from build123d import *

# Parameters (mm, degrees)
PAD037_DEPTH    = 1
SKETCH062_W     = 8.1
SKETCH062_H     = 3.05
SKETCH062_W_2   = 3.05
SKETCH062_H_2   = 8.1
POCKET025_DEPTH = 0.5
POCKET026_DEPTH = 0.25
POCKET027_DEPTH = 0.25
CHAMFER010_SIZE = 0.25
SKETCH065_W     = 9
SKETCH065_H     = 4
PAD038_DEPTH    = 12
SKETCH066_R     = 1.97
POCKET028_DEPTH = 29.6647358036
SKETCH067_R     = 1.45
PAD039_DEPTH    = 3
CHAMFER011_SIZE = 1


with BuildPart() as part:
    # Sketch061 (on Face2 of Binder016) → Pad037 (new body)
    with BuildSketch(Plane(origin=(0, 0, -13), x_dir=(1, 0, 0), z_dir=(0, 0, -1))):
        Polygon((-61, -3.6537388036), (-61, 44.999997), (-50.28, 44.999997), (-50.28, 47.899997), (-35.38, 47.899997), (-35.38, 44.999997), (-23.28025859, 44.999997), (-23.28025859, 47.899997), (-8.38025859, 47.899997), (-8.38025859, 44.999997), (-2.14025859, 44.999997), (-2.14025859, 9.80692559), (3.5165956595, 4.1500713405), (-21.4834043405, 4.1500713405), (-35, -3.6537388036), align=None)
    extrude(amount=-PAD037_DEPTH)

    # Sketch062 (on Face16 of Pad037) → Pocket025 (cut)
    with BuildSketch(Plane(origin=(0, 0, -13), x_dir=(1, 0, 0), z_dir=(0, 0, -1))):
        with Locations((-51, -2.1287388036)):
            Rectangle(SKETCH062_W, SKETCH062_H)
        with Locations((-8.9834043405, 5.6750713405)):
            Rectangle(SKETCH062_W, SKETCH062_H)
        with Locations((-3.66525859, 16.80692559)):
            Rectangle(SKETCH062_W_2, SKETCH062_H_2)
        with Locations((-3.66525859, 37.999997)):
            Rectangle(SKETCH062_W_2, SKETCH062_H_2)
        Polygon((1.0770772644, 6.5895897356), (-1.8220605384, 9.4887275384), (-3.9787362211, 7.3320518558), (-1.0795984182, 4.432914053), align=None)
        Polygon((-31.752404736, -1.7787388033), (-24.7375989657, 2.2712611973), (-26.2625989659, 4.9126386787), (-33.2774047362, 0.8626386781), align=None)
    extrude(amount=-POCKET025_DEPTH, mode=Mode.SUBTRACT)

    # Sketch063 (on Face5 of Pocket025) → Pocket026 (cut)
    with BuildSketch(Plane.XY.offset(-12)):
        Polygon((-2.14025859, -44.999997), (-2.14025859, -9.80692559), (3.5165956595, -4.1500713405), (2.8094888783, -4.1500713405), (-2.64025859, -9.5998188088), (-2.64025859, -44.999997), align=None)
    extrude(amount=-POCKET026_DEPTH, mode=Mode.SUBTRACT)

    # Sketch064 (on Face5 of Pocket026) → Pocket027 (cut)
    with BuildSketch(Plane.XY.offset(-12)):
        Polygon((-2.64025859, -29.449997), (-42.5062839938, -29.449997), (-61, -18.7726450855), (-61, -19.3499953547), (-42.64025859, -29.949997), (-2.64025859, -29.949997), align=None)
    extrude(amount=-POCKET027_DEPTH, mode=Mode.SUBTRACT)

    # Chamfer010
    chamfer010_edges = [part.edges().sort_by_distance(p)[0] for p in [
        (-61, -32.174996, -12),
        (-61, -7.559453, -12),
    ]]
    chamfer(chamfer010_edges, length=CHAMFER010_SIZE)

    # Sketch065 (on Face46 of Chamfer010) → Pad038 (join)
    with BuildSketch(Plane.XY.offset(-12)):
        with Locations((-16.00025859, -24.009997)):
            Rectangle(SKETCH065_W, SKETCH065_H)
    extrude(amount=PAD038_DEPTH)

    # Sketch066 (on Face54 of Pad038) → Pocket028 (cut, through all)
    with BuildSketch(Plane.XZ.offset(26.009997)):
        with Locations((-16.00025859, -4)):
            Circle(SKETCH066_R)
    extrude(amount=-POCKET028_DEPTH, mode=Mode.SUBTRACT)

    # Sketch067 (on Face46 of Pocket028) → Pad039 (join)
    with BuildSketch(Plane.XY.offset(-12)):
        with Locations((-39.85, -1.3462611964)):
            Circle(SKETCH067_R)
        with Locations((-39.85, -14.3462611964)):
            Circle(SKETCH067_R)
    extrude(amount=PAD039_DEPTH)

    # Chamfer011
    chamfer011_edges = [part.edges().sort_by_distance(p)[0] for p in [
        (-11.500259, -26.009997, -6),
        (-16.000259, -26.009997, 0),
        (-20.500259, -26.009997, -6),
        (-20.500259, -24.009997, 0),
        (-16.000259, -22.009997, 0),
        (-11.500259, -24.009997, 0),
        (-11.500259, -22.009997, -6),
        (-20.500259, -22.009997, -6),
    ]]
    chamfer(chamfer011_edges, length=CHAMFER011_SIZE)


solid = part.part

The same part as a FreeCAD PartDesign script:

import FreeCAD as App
import Part
import Sketcher

V = App.Vector
Q = App.Units.Quantity


def edges_at(feature, points):
    """Names of the edges that pass closest to the given points."""
    edges = feature.Shape.Edges
    near = lambda p: min(range(len(edges)), key=lambda i: edges[i].distToShape(Part.Vertex(*p))[0])
    return sorted({f"Edge{near(p) + 1}" for p in points})

doc = App.newDocument("Part")
body = doc.addObject("PartDesign::Body", "Body")

# Sketch on XY plane
sketch1 = doc.addObject("Sketcher::SketchObject", "Sketch")
body.addObject(sketch1)
sketch1.AttachmentSupport = (doc.XY_Plane, [""])
sketch1.MapMode = "FlatFace"
sketch1.AttachmentOffset = App.Placement(V(0, 0, -13), App.Rotation())
sketch1.addGeometry(Part.LineSegment(V(-61, -45, 0), V(-61, 3.7, 0)), False)
sketch1.addGeometry(Part.LineSegment(V(-61, 3.7, 0), V(-35, 3.7, 0)), False)
sketch1.addGeometry(Part.LineSegment(V(-35, 3.7, 0), V(-21.5, -4.2, 0)), False)
sketch1.addGeometry(Part.LineSegment(V(-21.5, -4.2, 0), V(3.5, -4.2, 0)), False)
sketch1.addGeometry(Part.LineSegment(V(3.5, -4.2, 0), V(-2.1, -9.8, 0)), False)
sketch1.addGeometry(Part.LineSegment(V(-2.1, -9.8, 0), V(-2.1, -45, 0)), False)
sketch1.addGeometry(Part.LineSegment(V(-2.1, -45, 0), V(-8.4, -45, 0)), False)
sketch1.addGeometry(Part.LineSegment(V(-8.4, -45, 0), V(-8.4, -47.9, 0)), False)
sketch1.addGeometry(Part.LineSegment(V(-8.4, -47.9, 0), V(-23.3, -47.9, 0)), False)
sketch1.addGeometry(Part.LineSegment(V(-23.3, -47.9, 0), V(-23.3, -45, 0)), False)
sketch1.addGeometry(Part.LineSegment(V(-23.3, -45, 0), V(-35.4, -45, 0)), False)
sketch1.addGeometry(Part.LineSegment(V(-35.4, -45, 0), V(-35.4, -47.9, 0)), False)
sketch1.addGeometry(Part.LineSegment(V(-35.4, -47.9, 0), V(-50.3, -47.9, 0)), False)
sketch1.addGeometry(Part.LineSegment(V(-50.3, -47.9, 0), V(-50.3, -45, 0)), False)
sketch1.addGeometry(Part.LineSegment(V(-50.3, -45, 0), V(-61, -45, 0)), False)
sketch1.addConstraint(Sketcher.Constraint("Coincident", 0, 2, 1, 1))
sketch1.addConstraint(Sketcher.Constraint("Coincident", 1, 2, 2, 1))
sketch1.addConstraint(Sketcher.Constraint("Coincident", 2, 2, 3, 1))
sketch1.addConstraint(Sketcher.Constraint("Coincident", 3, 2, 4, 1))
sketch1.addConstraint(Sketcher.Constraint("Coincident", 4, 2, 5, 1))
sketch1.addConstraint(Sketcher.Constraint("Coincident", 5, 2, 6, 1))
sketch1.addConstraint(Sketcher.Constraint("Coincident", 6, 2, 7, 1))
sketch1.addConstraint(Sketcher.Constraint("Coincident", 7, 2, 8, 1))
sketch1.addConstraint(Sketcher.Constraint("Coincident", 8, 2, 9, 1))
sketch1.addConstraint(Sketcher.Constraint("Coincident", 9, 2, 10, 1))
sketch1.addConstraint(Sketcher.Constraint("Coincident", 10, 2, 11, 1))
sketch1.addConstraint(Sketcher.Constraint("Coincident", 11, 2, 12, 1))
sketch1.addConstraint(Sketcher.Constraint("Coincident", 12, 2, 13, 1))
sketch1.addConstraint(Sketcher.Constraint("Coincident", 13, 2, 14, 1))
sketch1.addConstraint(Sketcher.Constraint("Coincident", 14, 2, 0, 1))
sketch1.addConstraint(Sketcher.Constraint("Vertical", 0))
sketch1.addConstraint(Sketcher.Constraint("Horizontal", 1))
sketch1.addConstraint(Sketcher.Constraint("Horizontal", 3))
sketch1.addConstraint(Sketcher.Constraint("Vertical", 5))
sketch1.addConstraint(Sketcher.Constraint("Horizontal", 6))
sketch1.addConstraint(Sketcher.Constraint("Vertical", 7))
sketch1.addConstraint(Sketcher.Constraint("Horizontal", 8))
sketch1.addConstraint(Sketcher.Constraint("Vertical", 9))
sketch1.addConstraint(Sketcher.Constraint("Horizontal", 10))
sketch1.addConstraint(Sketcher.Constraint("Vertical", 11))
sketch1.addConstraint(Sketcher.Constraint("Horizontal", 12))
sketch1.addConstraint(Sketcher.Constraint("Vertical", 13))
sketch1.addConstraint(Sketcher.Constraint("Horizontal", 14))
sketch1.addConstraint(Sketcher.Constraint("Horizontal", 6, 2, 9, 2))
sketch1.addConstraint(Sketcher.Constraint("Horizontal", 8, 2, 11, 2))
sketch1.addConstraint(Sketcher.Constraint("Horizontal", 10, 2, 13, 2))
sketch1.addConstraint(Sketcher.Constraint("Equal", 8, 12))
sketch1.addConstraint(Sketcher.Constraint("DistanceX", 1, 1, 1, 2, Q("26 mm")))
sketch1.addConstraint(Sketcher.Constraint("DistanceX", 3, 1, 3, 2, Q("25 mm")))
sketch1.addConstraint(Sketcher.Constraint("Angle", 2, Q("-30 deg")))
sketch1.addConstraint(Sketcher.Constraint("Angle", 4, Q("-135 deg")))
sketch1.addConstraint(Sketcher.Constraint("Distance", 4, Q("8 mm")))
sketch1.addConstraint(Sketcher.Constraint("DistanceX", 8, 2, 8, 1, Q("14.9 mm")))
sketch1.addConstraint(Sketcher.Constraint("DistanceY", 7, 2, 7, 1, Q("2.9 mm")))
sketch1.addConstraint(Sketcher.Constraint("DistanceX", 0, 2, -1, 1, Q("61 mm")))
sketch1.addConstraint(Sketcher.Constraint("DistanceX", 6, 2, 6, 1, Q("6.24 mm")))
sketch1.addConstraint(Sketcher.Constraint("DistanceX", 14, 2, 14, 1, Q("10.72 mm")))
sketch1.addConstraint(Sketcher.Constraint("DistanceX", 10, 2, 10, 1, Q("12.099741 mm")))
sketch1.addConstraint(Sketcher.Constraint("DistanceY", 5, 2, 5, 1, Q("35.193071 mm")))
sketch1.addConstraint(Sketcher.Constraint("DistanceY", -1, 1, 0, 2, Q("3.653739 mm")))
pad1 = doc.addObject("PartDesign::Pad", "Pad")
body.addObject(pad1)
pad1.Profile = sketch1
pad1.Length = 1

# Sketch on XY plane
sketch2 = doc.addObject("Sketcher::SketchObject", "Sketch001")
body.addObject(sketch2)
sketch2.AttachmentSupport = (doc.XY_Plane, [""])
sketch2.MapMode = "FlatFace"
sketch2.AttachmentOffset = App.Placement(V(0, 0, -13), App.Rotation())
sketch2.addGeometry(Part.LineSegment(V(-55, 0.6, 0), V(-55, 3.7, 0)), False)
sketch2.addGeometry(Part.LineSegment(V(-55, 3.7, 0), V(-47, 3.7, 0)), False)
sketch2.addGeometry(Part.LineSegment(V(-47, 3.7, 0), V(-47, 0.6, 0)), False)
sketch2.addGeometry(Part.LineSegment(V(-47, 0.6, 0), V(-55, 0.6, 0)), False)
sketch2.addGeometry(Part.LineSegment(V(-13, -7.2, 0), V(-13, -4.2, 0)), False)
sketch2.addGeometry(Part.LineSegment(V(-13, -4.2, 0), V(-4.9, -4.2, 0)), False)
sketch2.addGeometry(Part.LineSegment(V(-4.9, -4.2, 0), V(-4.9, -7.2, 0)), False)
sketch2.addGeometry(Part.LineSegment(V(-4.9, -7.2, 0), V(-13, -7.2, 0)), False)
sketch2.addGeometry(Part.LineSegment(V(-5.2, -20.9, 0), V(-5.2, -12.8, 0)), False)
sketch2.addGeometry(Part.LineSegment(V(-5.2, -12.8, 0), V(-2.1, -12.8, 0)), False)
sketch2.addGeometry(Part.LineSegment(V(-2.1, -12.8, 0), V(-2.1, -20.9, 0)), False)
sketch2.addGeometry(Part.LineSegment(V(-2.1, -20.9, 0), V(-5.2, -20.9, 0)), False)
sketch2.addGeometry(Part.LineSegment(V(-5.2, -42, 0), V(-5.2, -33.9, 0)), False)
sketch2.addGeometry(Part.LineSegment(V(-5.2, -33.9, 0), V(-2.1, -33.9, 0)), False)
sketch2.addGeometry(Part.LineSegment(V(-2.1, -33.9, 0), V(-2.1, -42, 0)), False)
sketch2.addGeometry(Part.LineSegment(V(-2.1, -42, 0), V(-5.2, -42, 0)), False)
sketch2.addGeometry(Part.LineSegment(V(1.1, -6.6, 0), V(-1.8, -9.5, 0)), False)
sketch2.addGeometry(Part.LineSegment(V(-1.8, -9.5, 0), V(-4, -7.3, 0)), False)
sketch2.addGeometry(Part.LineSegment(V(-4, -7.3, 0), V(-1.1, -4.4, 0)), False)
sketch2.addGeometry(Part.LineSegment(V(-1.1, -4.4, 0), V(1.1, -6.6, 0)), False)
sketch2.addGeometry(Part.LineSegment(V(-31.8, 1.8, 0), V(-24.7, -2.3, 0)), False)
sketch2.addGeometry(Part.LineSegment(V(-24.7, -2.3, 0), V(-26.3, -4.9, 0)), False)
sketch2.addGeometry(Part.LineSegment(V(-26.3, -4.9, 0), V(-33.3, -0.9, 0)), False)
sketch2.addGeometry(Part.LineSegment(V(-33.3, -0.9, 0), V(-31.8, 1.8, 0)), False)
sketch2.addConstraint(Sketcher.Constraint("Coincident", 0, 2, 1, 1))
sketch2.addConstraint(Sketcher.Constraint("Coincident", 1, 2, 2, 1))
sketch2.addConstraint(Sketcher.Constraint("Coincident", 2, 2, 3, 1))
sketch2.addConstraint(Sketcher.Constraint("Coincident", 3, 2, 0, 1))
sketch2.addConstraint(Sketcher.Constraint("Coincident", 4, 2, 5, 1))
sketch2.addConstraint(Sketcher.Constraint("Coincident", 5, 2, 6, 1))
sketch2.addConstraint(Sketcher.Constraint("Coincident", 6, 2, 7, 1))
sketch2.addConstraint(Sketcher.Constraint("Coincident", 7, 2, 4, 1))
sketch2.addConstraint(Sketcher.Constraint("Coincident", 8, 2, 9, 1))
sketch2.addConstraint(Sketcher.Constraint("Coincident", 9, 2, 10, 1))
sketch2.addConstraint(Sketcher.Constraint("Coincident", 10, 2, 11, 1))
sketch2.addConstraint(Sketcher.Constraint("Coincident", 11, 2, 8, 1))
sketch2.addConstraint(Sketcher.Constraint("Coincident", 12, 2, 13, 1))
sketch2.addConstraint(Sketcher.Constraint("Coincident", 13, 2, 14, 1))
sketch2.addConstraint(Sketcher.Constraint("Coincident", 14, 2, 15, 1))
sketch2.addConstraint(Sketcher.Constraint("Coincident", 15, 2, 12, 1))
sketch2.addConstraint(Sketcher.Constraint("Coincident", 16, 2, 17, 1))
sketch2.addConstraint(Sketcher.Constraint("Coincident", 17, 2, 18, 1))
sketch2.addConstraint(Sketcher.Constraint("Coincident", 18, 2, 19, 1))
sketch2.addConstraint(Sketcher.Constraint("Coincident", 19, 2, 16, 1))
sketch2.addConstraint(Sketcher.Constraint("Coincident", 20, 2, 21, 1))
sketch2.addConstraint(Sketcher.Constraint("Coincident", 21, 2, 22, 1))
sketch2.addConstraint(Sketcher.Constraint("Coincident", 22, 2, 23, 1))
sketch2.addConstraint(Sketcher.Constraint("Coincident", 23, 2, 20, 1))
sketch2.addConstraint(Sketcher.Constraint("Vertical", 0))
sketch2.addConstraint(Sketcher.Constraint("Horizontal", 1))
sketch2.addConstraint(Sketcher.Constraint("Vertical", 2))
sketch2.addConstraint(Sketcher.Constraint("Horizontal", 3))
sketch2.addConstraint(Sketcher.Constraint("Vertical", 4))
sketch2.addConstraint(Sketcher.Constraint("Horizontal", 5))
sketch2.addConstraint(Sketcher.Constraint("Vertical", 6))
sketch2.addConstraint(Sketcher.Constraint("Horizontal", 7))
sketch2.addConstraint(Sketcher.Constraint("Vertical", 8))
sketch2.addConstraint(Sketcher.Constraint("Horizontal", 9))
sketch2.addConstraint(Sketcher.Constraint("Vertical", 10))
sketch2.addConstraint(Sketcher.Constraint("Horizontal", 11))
sketch2.addConstraint(Sketcher.Constraint("Vertical", 12))
sketch2.addConstraint(Sketcher.Constraint("Horizontal", 13))
sketch2.addConstraint(Sketcher.Constraint("Vertical", 14))
sketch2.addConstraint(Sketcher.Constraint("Horizontal", 15))
sketch2.addConstraint(Sketcher.Constraint("Perpendicular", 16, 17))
sketch2.addConstraint(Sketcher.Constraint("Perpendicular", 17, 18))
sketch2.addConstraint(Sketcher.Constraint("Perpendicular", 18, 19))
sketch2.addConstraint(Sketcher.Constraint("Perpendicular", 20, 21))
sketch2.addConstraint(Sketcher.Constraint("Perpendicular", 21, 22))
sketch2.addConstraint(Sketcher.Constraint("Perpendicular", 22, 23))
sketch2.addConstraint(Sketcher.Constraint("Vertical", 11, 2, 12, 2))
sketch2.addConstraint(Sketcher.Constraint("Vertical", 10, 2, 13, 2))
sketch2.addConstraint(Sketcher.Constraint("Equal", 3, 5))
sketch2.addConstraint(Sketcher.Constraint("Equal", 15, 0))
sketch2.addConstraint(Sketcher.Constraint("Equal", 2, 4))
sketch2.addConstraint(Sketcher.Constraint("Equal", 7, 8))
sketch2.addConstraint(Sketcher.Constraint("Equal", 10, 12))
sketch2.addConstraint(Sketcher.Constraint("Equal", 19, 21))
sketch2.addConstraint(Sketcher.Constraint("Angle", 16, Q("-135 deg")))
sketch2.addConstraint(Sketcher.Constraint("Angle", 20, Q("-30 deg")))
sketch2.addConstraint(Sketcher.Constraint("DistanceX", 1, 1, 1, 2, Q("8.1 mm")))
sketch2.addConstraint(Sketcher.Constraint("Distance", 16, Q("4.1 mm")))
sketch2.addConstraint(Sketcher.Constraint("Distance", 20, Q("8.1 mm")))
sketch2.addConstraint(Sketcher.Constraint("DistanceX", 9, 1, 9, 2, Q("3.05 mm")))
sketch2.addConstraint(Sketcher.Constraint("Distance", 17, Q("3.05 mm")))
sketch2.addConstraint(Sketcher.Constraint("DistanceX", 0, 2, -1, 1, Q("55.05 mm")))
sketch2.addConstraint(Sketcher.Constraint("DistanceX", 22, 2, 4, 2, Q("20.244 mm")))
sketch2.addConstraint(Sketcher.Constraint("DistanceY", 2, 2, 23, 2, Q("1.175 mm")))
sketch2.addConstraint(Sketcher.Constraint("DistanceX", 18, 2, -1, 1, Q("1.079598 mm")))
sketch2.addConstraint(Sketcher.Constraint("DistanceX", 20, 2, -1, 1, Q("24.737599 mm")))
sketch2.addConstraint(Sketcher.Constraint("DistanceX", 9, 2, 16, 2, Q("0.318198 mm")))
sketch2.addConstraint(Sketcher.Constraint("DistanceY", 9, 2, 16, 2, Q("3.268198 mm")))
sketch2.addConstraint(Sketcher.Constraint("DistanceY", -1, 1, 0, 2, Q("3.653739 mm")))
sketch2.addConstraint(Sketcher.Constraint("DistanceY", 4, 2, -1, 1, Q("4.150071 mm")))
sketch2.addConstraint(Sketcher.Constraint("DistanceY", 17, 2, -1, 1, Q("7.332052 mm")))
sketch2.addConstraint(Sketcher.Constraint("DistanceY", 12, 2, 11, 2, Q("13.093071 mm")))
pocket1 = doc.addObject("PartDesign::Pocket", "Pocket")
body.addObject(pocket1)
pocket1.Profile = sketch2
pocket1.Length = 0.5
pocket1.Reversed = True

# Sketch on XY plane
sketch3 = doc.addObject("Sketcher::SketchObject", "Sketch002")
body.addObject(sketch3)
sketch3.AttachmentSupport = (doc.XY_Plane, [""])
sketch3.MapMode = "FlatFace"
sketch3.AttachmentOffset = App.Placement(V(0, 0, -12), App.Rotation())
sketch3.addGeometry(Part.LineSegment(V(-2.1, -45, 0), V(-2.1, -9.8, 0)), False)
sketch3.addGeometry(Part.LineSegment(V(-2.1, -9.8, 0), V(3.5, -4.2, 0)), False)
sketch3.addGeometry(Part.LineSegment(V(3.5, -4.2, 0), V(2.8, -4.2, 0)), False)
sketch3.addGeometry(Part.LineSegment(V(2.8, -4.2, 0), V(-2.6, -9.6, 0)), False)
sketch3.addGeometry(Part.LineSegment(V(-2.6, -9.6, 0), V(-2.6, -45, 0)), False)
sketch3.addGeometry(Part.LineSegment(V(-2.6, -45, 0), V(-2.1, -45, 0)), False)
sketch3.addConstraint(Sketcher.Constraint("Coincident", 0, 2, 1, 1))
sketch3.addConstraint(Sketcher.Constraint("Coincident", 1, 2, 2, 1))
sketch3.addConstraint(Sketcher.Constraint("Coincident", 2, 2, 3, 1))
sketch3.addConstraint(Sketcher.Constraint("Coincident", 3, 2, 4, 1))
sketch3.addConstraint(Sketcher.Constraint("Coincident", 4, 2, 5, 1))
sketch3.addConstraint(Sketcher.Constraint("Coincident", 5, 2, 0, 1))
sketch3.addConstraint(Sketcher.Constraint("Vertical", 0))
sketch3.addConstraint(Sketcher.Constraint("Horizontal", 2))
sketch3.addConstraint(Sketcher.Constraint("Vertical", 4))
sketch3.addConstraint(Sketcher.Constraint("Horizontal", 5))
sketch3.addConstraint(Sketcher.Constraint("Parallel", 1, 3))
sketch3.addConstraint(Sketcher.Constraint("Angle", 1, Q("45 deg")))
sketch3.addConstraint(Sketcher.Constraint("Distance", 1, Q("8 mm")))
sketch3.addConstraint(Sketcher.Constraint("DistanceX", 5, 1, 5, 2, Q("0.5 mm")))
sketch3.addConstraint(Sketcher.Constraint("DistanceY", 0, 1, 0, 2, Q("35.193071 mm")))
sketch3.addConstraint(Sketcher.Constraint("DistanceY", 4, 2, 4, 1, Q("35.400178 mm")))
sketch3.addConstraint(Sketcher.Constraint("DistanceX", 0, 2, -1, 1, Q("2.140259 mm")))
sketch3.addConstraint(Sketcher.Constraint("DistanceY", 1, 2, -1, 1, Q("4.150071 mm")))
pocket2 = doc.addObject("PartDesign::Pocket", "Pocket001")
body.addObject(pocket2)
pocket2.Profile = sketch3
pocket2.Length = 0.25

# Sketch on XY plane
sketch4 = doc.addObject("Sketcher::SketchObject", "Sketch003")
body.addObject(sketch4)
sketch4.AttachmentSupport = (doc.XY_Plane, [""])
sketch4.MapMode = "FlatFace"
sketch4.AttachmentOffset = App.Placement(V(0, 0, -12), App.Rotation())
sketch4.addGeometry(Part.LineSegment(V(-2.6, -29.4, 0), V(-42.5, -29.4, 0)), False)
sketch4.addGeometry(Part.LineSegment(V(-42.5, -29.4, 0), V(-61, -18.8, 0)), False)
sketch4.addGeometry(Part.LineSegment(V(-61, -18.8, 0), V(-61, -19.3, 0)), False)
sketch4.addGeometry(Part.LineSegment(V(-61, -19.3, 0), V(-42.6, -29.9, 0)), False)
sketch4.addGeometry(Part.LineSegment(V(-42.6, -29.9, 0), V(-2.6, -29.9, 0)), False)
sketch4.addGeometry(Part.LineSegment(V(-2.6, -29.9, 0), V(-2.6, -29.4, 0)), False)
sketch4.addConstraint(Sketcher.Constraint("Coincident", 0, 2, 1, 1))
sketch4.addConstraint(Sketcher.Constraint("Coincident", 1, 2, 2, 1))
sketch4.addConstraint(Sketcher.Constraint("Coincident", 2, 2, 3, 1))
sketch4.addConstraint(Sketcher.Constraint("Coincident", 3, 2, 4, 1))
sketch4.addConstraint(Sketcher.Constraint("Coincident", 4, 2, 5, 1))
sketch4.addConstraint(Sketcher.Constraint("Coincident", 5, 2, 0, 1))
sketch4.addConstraint(Sketcher.Constraint("Horizontal", 0))
sketch4.addConstraint(Sketcher.Constraint("Vertical", 2))
sketch4.addConstraint(Sketcher.Constraint("Horizontal", 4))
sketch4.addConstraint(Sketcher.Constraint("Vertical", 5))
sketch4.addConstraint(Sketcher.Constraint("Parallel", 1, 3))
sketch4.addConstraint(Sketcher.Constraint("DistanceX", 4, 1, 4, 2, Q("40 mm")))
sketch4.addConstraint(Sketcher.Constraint("Angle", 1, Q("150 deg")))
sketch4.addConstraint(Sketcher.Constraint("DistanceY", 5, 1, 5, 2, Q("0.5 mm")))
sketch4.addConstraint(Sketcher.Constraint("DistanceX", 1, 2, -1, 1, Q("61 mm")))
sketch4.addConstraint(Sketcher.Constraint("DistanceY", 0, 2, 2, 2, Q("10.100002 mm")))
sketch4.addConstraint(Sketcher.Constraint("DistanceY", 2, 2, 2, 1, Q("0.57735 mm")))
sketch4.addConstraint(Sketcher.Constraint("DistanceY", 0, 2, -1, 1, Q("29.449997 mm")))
pocket3 = doc.addObject("PartDesign::Pocket", "Pocket002")
body.addObject(pocket3)
pocket3.Profile = sketch4
pocket3.Length = 0.25
doc.recompute()

chamfer = doc.addObject("PartDesign::Chamfer", "Chamfer")
body.addObject(chamfer)
chamfer.Base = (pocket3, edges_at(pocket3, [(-61, -32.175, -12), (-61, -7.559, -12)]))
chamfer.Size = 0.25

# Sketch on XY plane
sketch5 = doc.addObject("Sketcher::SketchObject", "Sketch004")
body.addObject(sketch5)
sketch5.AttachmentSupport = (doc.XY_Plane, [""])
sketch5.MapMode = "FlatFace"
sketch5.AttachmentOffset = App.Placement(V(0, 0, -12), App.Rotation())
sketch5.addGeometry(Part.LineSegment(V(-20.5, -22, 0), V(-20.5, -26, 0)), False)
sketch5.addGeometry(Part.LineSegment(V(-20.5, -26, 0), V(-11.5, -26, 0)), False)
sketch5.addGeometry(Part.LineSegment(V(-11.5, -26, 0), V(-11.5, -22, 0)), False)
sketch5.addGeometry(Part.LineSegment(V(-11.5, -22, 0), V(-20.5, -22, 0)), False)
sketch5.addConstraint(Sketcher.Constraint("Coincident", 0, 2, 1, 1))
sketch5.addConstraint(Sketcher.Constraint("Coincident", 1, 2, 2, 1))
sketch5.addConstraint(Sketcher.Constraint("Coincident", 2, 2, 3, 1))
sketch5.addConstraint(Sketcher.Constraint("Coincident", 3, 2, 0, 1))
sketch5.addConstraint(Sketcher.Constraint("Vertical", 0))
sketch5.addConstraint(Sketcher.Constraint("Horizontal", 1))
sketch5.addConstraint(Sketcher.Constraint("Vertical", 2))
sketch5.addConstraint(Sketcher.Constraint("Horizontal", 3))
sketch5.addConstraint(Sketcher.Constraint("DistanceX", 1, 1, 1, 2, Q("9 mm")))
sketch5.addConstraint(Sketcher.Constraint("DistanceY", 0, 2, 0, 1, Q("4 mm")))
sketch5.addConstraint(Sketcher.Constraint("DistanceX", 0, 2, -1, 1, Q("20.500259 mm")))
sketch5.addConstraint(Sketcher.Constraint("DistanceY", 0, 2, -1, 1, Q("26.009997 mm")))
pad2 = doc.addObject("PartDesign::Pad", "Pad001")
body.addObject(pad2)
pad2.Profile = sketch5
pad2.Length = 12

# Sketch on XZ plane
sketch6 = doc.addObject("Sketcher::SketchObject", "Sketch005")
body.addObject(sketch6)
sketch6.AttachmentSupport = (doc.XZ_Plane, [""])
sketch6.MapMode = "FlatFace"
sketch6.AttachmentOffset = App.Placement(V(0, 0, 26.009997), App.Rotation())
sketch6.addGeometry(Part.Circle(V(-16, -4, 0), V(0, 0, 1), 2), False)
sketch6.addConstraint(Sketcher.Constraint("Diameter", 0, Q("3.94 mm")))
sketch6.addConstraint(Sketcher.Constraint("DistanceY", 0, 3, -1, 1, Q("4 mm")))
sketch6.addConstraint(Sketcher.Constraint("DistanceX", 0, 3, -1, 1, Q("16.000259 mm")))
pocket4 = doc.addObject("PartDesign::Pocket", "Pocket003")
body.addObject(pocket4)
pocket4.Profile = sketch6
pocket4.Type = "ThroughAll"

# Sketch on XY plane
sketch7 = doc.addObject("Sketcher::SketchObject", "Sketch006")
body.addObject(sketch7)
sketch7.AttachmentSupport = (doc.XY_Plane, [""])
sketch7.MapMode = "FlatFace"
sketch7.AttachmentOffset = App.Placement(V(0, 0, -12), App.Rotation())
sketch7.addGeometry(Part.Circle(V(-39.9, -1.3, 0), V(0, 0, 1), 1.4), False)
sketch7.addGeometry(Part.Circle(V(-39.9, -14.3, 0), V(0, 0, 1), 1.4), False)
sketch7.addConstraint(Sketcher.Constraint("Equal", 0, 1))
sketch7.addConstraint(Sketcher.Constraint("Vertical", 0, 3, 1, 3))
sketch7.addConstraint(Sketcher.Constraint("Diameter", 0, Q("2.9 mm")))
sketch7.addConstraint(Sketcher.Constraint("DistanceY", 1, 3, 0, 3, Q("13 mm")))
sketch7.addConstraint(Sketcher.Constraint("DistanceX", 0, 3, -1, 1, Q("39.85 mm")))
sketch7.addConstraint(Sketcher.Constraint("DistanceY", 0, 3, -1, 1, Q("1.346261 mm")))
pad3 = doc.addObject("PartDesign::Pad", "Pad002")
body.addObject(pad3)
pad3.Profile = sketch7
pad3.Length = 3
doc.recompute()

chamfer2 = doc.addObject("PartDesign::Chamfer", "Chamfer001")
body.addObject(chamfer2)
chamfer2.Base = (pad3, edges_at(pad3, [
    (-11.5, -26.01, -6),
    (-16, -26.01, 0),
    (-20.5, -26.01, -6),
    (-20.5, -24.01, 0),
    (-16, -22.01, 0),
    (-11.5, -24.01, 0),
    (-11.5, -22.01, -6),
    (-20.5, -22.01, -6),
]))
chamfer2.Size = 1

doc.recompute()
